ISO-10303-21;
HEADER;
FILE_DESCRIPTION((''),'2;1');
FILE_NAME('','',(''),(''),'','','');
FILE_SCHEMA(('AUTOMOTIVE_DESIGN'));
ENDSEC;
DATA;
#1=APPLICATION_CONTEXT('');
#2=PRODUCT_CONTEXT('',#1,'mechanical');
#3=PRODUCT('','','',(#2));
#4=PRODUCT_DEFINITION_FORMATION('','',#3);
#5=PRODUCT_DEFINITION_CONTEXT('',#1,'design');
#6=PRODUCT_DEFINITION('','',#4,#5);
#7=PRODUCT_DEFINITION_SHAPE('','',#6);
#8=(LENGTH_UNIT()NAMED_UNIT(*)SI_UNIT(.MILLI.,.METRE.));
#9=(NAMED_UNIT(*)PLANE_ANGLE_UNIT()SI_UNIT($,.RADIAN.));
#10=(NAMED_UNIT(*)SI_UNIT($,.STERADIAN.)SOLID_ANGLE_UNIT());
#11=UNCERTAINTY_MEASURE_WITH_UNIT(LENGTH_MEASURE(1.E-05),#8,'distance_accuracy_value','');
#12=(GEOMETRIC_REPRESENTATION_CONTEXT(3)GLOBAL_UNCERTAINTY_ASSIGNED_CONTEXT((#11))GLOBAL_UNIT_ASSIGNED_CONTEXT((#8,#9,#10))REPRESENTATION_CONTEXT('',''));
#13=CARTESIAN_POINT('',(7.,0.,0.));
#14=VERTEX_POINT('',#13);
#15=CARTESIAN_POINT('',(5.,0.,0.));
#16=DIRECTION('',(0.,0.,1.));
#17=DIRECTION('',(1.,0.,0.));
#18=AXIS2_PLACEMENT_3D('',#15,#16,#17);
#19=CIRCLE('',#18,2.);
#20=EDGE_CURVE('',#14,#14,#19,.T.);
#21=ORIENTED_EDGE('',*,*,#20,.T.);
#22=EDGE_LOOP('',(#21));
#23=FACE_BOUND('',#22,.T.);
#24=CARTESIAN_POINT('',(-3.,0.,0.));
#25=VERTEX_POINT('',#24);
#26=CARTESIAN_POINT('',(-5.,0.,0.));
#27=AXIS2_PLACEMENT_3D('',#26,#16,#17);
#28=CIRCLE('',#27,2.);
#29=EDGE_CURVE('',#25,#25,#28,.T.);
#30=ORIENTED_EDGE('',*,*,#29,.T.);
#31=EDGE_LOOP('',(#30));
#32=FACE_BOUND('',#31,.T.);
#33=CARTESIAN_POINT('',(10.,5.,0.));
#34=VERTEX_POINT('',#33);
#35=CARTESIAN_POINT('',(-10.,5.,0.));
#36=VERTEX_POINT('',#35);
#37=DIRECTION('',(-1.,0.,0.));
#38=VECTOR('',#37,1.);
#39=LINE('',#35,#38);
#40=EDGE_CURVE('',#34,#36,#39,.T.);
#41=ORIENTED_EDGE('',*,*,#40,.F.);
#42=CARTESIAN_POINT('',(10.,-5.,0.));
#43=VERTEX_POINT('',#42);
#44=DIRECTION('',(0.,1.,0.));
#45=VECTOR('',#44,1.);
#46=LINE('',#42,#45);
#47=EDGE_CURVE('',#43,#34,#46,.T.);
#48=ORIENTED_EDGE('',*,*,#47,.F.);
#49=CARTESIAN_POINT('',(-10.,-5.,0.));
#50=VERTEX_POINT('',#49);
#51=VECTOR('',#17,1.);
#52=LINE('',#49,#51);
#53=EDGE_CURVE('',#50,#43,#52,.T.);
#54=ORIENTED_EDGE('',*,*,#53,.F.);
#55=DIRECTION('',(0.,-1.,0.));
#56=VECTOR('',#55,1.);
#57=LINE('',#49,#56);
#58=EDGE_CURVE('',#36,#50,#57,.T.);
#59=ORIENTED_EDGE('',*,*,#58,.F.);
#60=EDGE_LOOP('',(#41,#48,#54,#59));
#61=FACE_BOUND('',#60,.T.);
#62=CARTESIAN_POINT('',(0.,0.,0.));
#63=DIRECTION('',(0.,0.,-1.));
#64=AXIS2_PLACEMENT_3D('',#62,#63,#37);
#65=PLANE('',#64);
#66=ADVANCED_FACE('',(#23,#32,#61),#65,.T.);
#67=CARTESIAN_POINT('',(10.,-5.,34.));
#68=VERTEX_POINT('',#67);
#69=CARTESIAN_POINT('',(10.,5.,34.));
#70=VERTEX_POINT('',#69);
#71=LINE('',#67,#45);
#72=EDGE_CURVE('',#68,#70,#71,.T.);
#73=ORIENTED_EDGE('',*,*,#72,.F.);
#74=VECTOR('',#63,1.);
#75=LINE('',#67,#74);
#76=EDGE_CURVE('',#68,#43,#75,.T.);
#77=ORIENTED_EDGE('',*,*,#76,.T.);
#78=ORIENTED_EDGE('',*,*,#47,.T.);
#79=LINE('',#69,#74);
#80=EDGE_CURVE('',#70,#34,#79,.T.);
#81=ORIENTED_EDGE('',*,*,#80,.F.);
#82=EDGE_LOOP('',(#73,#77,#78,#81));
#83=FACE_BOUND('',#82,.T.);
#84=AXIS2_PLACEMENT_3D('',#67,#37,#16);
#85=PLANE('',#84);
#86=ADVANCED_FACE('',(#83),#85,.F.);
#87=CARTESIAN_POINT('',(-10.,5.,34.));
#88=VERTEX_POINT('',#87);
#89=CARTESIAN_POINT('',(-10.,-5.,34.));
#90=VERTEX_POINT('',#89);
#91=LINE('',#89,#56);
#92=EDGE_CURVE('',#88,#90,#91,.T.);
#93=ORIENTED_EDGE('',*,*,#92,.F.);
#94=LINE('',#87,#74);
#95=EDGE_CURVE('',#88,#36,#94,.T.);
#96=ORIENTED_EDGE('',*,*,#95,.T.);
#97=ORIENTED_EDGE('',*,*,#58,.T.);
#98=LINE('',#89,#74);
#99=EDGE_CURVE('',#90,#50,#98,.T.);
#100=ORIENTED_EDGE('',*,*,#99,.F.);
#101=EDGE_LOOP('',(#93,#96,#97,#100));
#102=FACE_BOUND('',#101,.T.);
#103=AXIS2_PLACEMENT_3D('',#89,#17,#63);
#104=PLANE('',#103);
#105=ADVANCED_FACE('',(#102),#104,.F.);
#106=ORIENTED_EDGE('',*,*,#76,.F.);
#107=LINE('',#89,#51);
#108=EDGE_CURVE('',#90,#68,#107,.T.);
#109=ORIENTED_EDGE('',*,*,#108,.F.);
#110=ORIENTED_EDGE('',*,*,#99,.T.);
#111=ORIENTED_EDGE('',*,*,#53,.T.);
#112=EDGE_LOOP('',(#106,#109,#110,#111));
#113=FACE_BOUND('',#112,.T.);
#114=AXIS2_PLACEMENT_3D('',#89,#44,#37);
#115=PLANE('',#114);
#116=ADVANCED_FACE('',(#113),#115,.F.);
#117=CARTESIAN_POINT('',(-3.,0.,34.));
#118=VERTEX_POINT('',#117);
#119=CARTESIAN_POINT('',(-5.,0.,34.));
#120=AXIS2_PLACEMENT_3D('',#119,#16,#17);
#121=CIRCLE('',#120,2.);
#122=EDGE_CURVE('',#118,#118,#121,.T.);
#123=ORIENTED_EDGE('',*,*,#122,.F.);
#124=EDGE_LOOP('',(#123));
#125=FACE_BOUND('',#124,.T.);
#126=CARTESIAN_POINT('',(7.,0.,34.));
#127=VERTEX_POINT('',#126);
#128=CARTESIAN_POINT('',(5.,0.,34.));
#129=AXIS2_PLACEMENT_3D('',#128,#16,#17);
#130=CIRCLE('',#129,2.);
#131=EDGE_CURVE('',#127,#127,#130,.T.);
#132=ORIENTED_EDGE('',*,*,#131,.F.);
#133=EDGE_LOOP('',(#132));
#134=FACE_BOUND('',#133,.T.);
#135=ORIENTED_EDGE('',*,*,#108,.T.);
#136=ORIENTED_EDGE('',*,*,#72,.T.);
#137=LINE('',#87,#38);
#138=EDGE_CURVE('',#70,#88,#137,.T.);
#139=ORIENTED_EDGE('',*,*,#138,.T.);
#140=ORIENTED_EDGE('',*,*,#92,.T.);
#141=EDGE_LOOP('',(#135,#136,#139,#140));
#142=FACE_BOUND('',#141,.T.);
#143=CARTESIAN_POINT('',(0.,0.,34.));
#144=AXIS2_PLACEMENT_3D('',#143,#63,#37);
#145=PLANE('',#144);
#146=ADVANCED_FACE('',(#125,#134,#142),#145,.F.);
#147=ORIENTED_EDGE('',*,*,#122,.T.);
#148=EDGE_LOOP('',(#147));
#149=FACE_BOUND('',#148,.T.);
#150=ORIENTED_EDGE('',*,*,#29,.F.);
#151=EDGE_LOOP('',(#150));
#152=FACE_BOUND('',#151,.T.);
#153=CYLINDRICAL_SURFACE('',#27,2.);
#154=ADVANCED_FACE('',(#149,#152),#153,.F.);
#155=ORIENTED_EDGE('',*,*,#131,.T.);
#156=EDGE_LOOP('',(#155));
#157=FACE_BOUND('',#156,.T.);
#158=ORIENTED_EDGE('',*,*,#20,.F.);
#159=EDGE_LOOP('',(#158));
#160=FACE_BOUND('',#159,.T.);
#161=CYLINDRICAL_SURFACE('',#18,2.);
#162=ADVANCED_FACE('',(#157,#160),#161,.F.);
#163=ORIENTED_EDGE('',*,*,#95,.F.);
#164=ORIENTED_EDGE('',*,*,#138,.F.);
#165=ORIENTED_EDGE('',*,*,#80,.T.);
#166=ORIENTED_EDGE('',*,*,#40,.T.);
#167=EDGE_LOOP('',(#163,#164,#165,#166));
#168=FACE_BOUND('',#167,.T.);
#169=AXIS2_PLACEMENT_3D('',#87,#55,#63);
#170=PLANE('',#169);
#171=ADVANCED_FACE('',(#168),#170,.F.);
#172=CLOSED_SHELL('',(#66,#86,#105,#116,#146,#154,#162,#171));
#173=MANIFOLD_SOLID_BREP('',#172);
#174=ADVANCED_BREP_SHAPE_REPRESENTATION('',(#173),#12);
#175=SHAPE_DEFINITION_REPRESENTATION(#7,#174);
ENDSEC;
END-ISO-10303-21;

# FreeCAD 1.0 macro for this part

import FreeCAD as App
import Part
import Sketcher
from FreeCAD import Vector

doc = App.newDocument("Part")
body = doc.addObject("PartDesign::Body", "Body")

# Sketch on XY plane
sketch1 = body.newObject("Sketcher::SketchObject", "Sketch")
sketch1.AttachmentSupport = (doc.getObject("XY_Plane"), [""])
sketch1.MapMode = "FlatFace"
sketch1.addGeometry([
    Part.LineSegment(Vector(-10, 5, 0), Vector(-10, -5, 0)),
    Part.LineSegment(Vector(-10, -5, 0), Vector(10, -5, 0)),
    Part.LineSegment(Vector(10, -5, 0), Vector(10, 5, 0)),
    Part.LineSegment(Vector(10, 5, 0), Vector(-10, 5, 0)),
], False)
sketch1.addConstraint([
    Sketcher.Constraint("Coincident", 0, 2, 1, 1),
    Sketcher.Constraint("Coincident", 1, 2, 2, 1),
    Sketcher.Constraint("Coincident", 2, 2, 3, 1),
    Sketcher.Constraint("Coincident", 3, 2, 0, 1),
    Sketcher.Constraint("Vertical", 0),
    Sketcher.Constraint("Horizontal", 1),
    Sketcher.Constraint("Vertical", 2),
    Sketcher.Constraint("Horizontal", 3),
    Sketcher.Constraint("Symmetric", 0, 2, 2, 2, -1, 1),
    Sketcher.Constraint("DistanceX", 1, 1, 1, 2, 20.0),
    Sketcher.Constraint("DistanceY", 0, 2, 0, 1, 10.0),
])
pad1 = body.newObject("PartDesign::Pad", "Pad")
pad1.Profile = sketch1
pad1.Length = 34

# Sketch on XY plane
sketch2 = body.newObject("Sketcher::SketchObject", "Sketch001")
sketch2.AttachmentSupport = (doc.getObject("XY_Plane"), [""])
sketch2.MapMode = "FlatFace"
sketch2.AttachmentOffset = App.Placement(Vector(0, 0, 34), App.Rotation())
sketch2.addGeometry([
    Part.Circle(Vector(-5, 0, 0), Vector(0, 0, 1), 2),
    Part.Circle(Vector(5, 0, 0), Vector(0, 0, 1), 2),
], False)
sketch2.addConstraint([
    Sketcher.Constraint("Equal", 0, 1),
    Sketcher.Constraint("Symmetric", 0, 3, 1, 3, -1, 1),
    Sketcher.Constraint("PointOnObject", 0, 3, -1),
    Sketcher.Constraint("Diameter", 0, 4.0),
    Sketcher.Constraint("DistanceX", 0, 3, -1, 1, 5.0),
])
pocket1 = body.newObject("PartDesign::Pocket", "Pocket")
pocket1.Profile = sketch2
pocket1.Length = 34

doc.recompute()
